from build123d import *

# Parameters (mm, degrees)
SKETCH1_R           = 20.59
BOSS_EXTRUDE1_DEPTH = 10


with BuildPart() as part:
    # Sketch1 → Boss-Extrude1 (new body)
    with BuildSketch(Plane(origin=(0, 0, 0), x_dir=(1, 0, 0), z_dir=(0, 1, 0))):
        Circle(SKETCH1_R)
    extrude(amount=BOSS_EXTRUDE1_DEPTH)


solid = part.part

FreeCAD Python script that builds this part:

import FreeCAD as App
import Part
import Sketcher
from FreeCAD import Vector

doc = App.newDocument("Part")
body = doc.addObject("PartDesign::Body", "Body")

# Sketch on XZ plane
sketch1 = doc.addObject("Sketcher::SketchObject", "Sketch")
body.addObject(sketch1)
sketch1.AttachmentSupport = (doc.XZ_Plane, [""])
sketch1.MapMode = "FlatFace"
sketch1.addGeometry(Part.Circle(Vector(0, 0, 0), Vector(0, 0, 1), 21), False)
sketch1.addConstraint([
    Sketcher.Constraint("Coincident", 0, 3, -1, 1),
    Sketcher.Constraint("Diameter", 0, 41.18),
])
pad1 = doc.addObject("PartDesign::Pad", "Pad")
body.addObject(pad1)
pad1.Profile = sketch1
pad1.Length = 10
pad1.Reversed = True

doc.recompute()
